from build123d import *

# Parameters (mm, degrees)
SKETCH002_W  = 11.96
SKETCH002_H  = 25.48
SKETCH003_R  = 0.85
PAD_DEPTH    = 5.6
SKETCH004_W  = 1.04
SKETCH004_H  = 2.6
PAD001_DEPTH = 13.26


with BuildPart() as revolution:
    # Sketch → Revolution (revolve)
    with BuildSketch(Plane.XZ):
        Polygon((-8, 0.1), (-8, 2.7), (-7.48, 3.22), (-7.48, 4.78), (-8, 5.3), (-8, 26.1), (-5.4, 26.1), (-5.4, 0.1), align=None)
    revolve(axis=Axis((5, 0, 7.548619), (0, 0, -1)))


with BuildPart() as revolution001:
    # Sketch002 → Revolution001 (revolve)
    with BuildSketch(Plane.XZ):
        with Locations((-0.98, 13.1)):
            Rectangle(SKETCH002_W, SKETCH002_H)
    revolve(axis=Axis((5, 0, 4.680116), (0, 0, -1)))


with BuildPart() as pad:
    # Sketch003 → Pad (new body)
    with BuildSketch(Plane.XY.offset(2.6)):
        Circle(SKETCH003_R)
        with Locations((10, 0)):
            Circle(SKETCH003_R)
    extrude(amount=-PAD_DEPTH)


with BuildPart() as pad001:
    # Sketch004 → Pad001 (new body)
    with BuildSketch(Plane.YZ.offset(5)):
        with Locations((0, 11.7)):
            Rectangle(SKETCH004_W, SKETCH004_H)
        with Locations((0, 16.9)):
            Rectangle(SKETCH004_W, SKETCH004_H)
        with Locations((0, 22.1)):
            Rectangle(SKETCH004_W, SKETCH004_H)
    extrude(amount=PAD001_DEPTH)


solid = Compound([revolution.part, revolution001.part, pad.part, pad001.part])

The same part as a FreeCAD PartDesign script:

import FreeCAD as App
import Part
import Sketcher
from FreeCAD import Vector

doc = App.newDocument("Part")
body = doc.addObject("PartDesign::Body", "Body")

# Sketch on XZ plane
sketch1 = body.newObject("Sketcher::SketchObject", "Sketch")
sketch1.AttachmentSupport = (doc.getObject("XZ_Plane"), [""])
sketch1.MapMode = "FlatFace"
sketch1.addGeometry(Part.LineSegment(Vector(-8, 2.7, 0), Vector(-8, 0.1, 0)), False)
sketch1.addGeometry(Part.LineSegment(Vector(-8, 0.1, 0), Vector(-5.4, 0.1, 0)), False)
sketch1.addGeometry(Part.LineSegment(Vector(-5.4, 0.1, 0), Vector(-5.4, 26.1, 0)), False)
sketch1.addGeometry(Part.LineSegment(Vector(-5.4, 26.1, 0), Vector(-8, 26.1, 0)), False)
sketch1.addGeometry(Part.LineSegment(Vector(-8, 26.1, 0), Vector(-8, 5.3, 0)), False)
sketch1.addGeometry(Part.LineSegment(Vector(-8, 5.3, 0), Vector(-7.48, 4.78, 0)), False)
sketch1.addGeometry(Part.LineSegment(Vector(-7.48, 4.78, 0), Vector(-7.48, 3.22, 0)), False)
sketch1.addGeometry(Part.LineSegment(Vector(-7.48, 3.22, 0), Vector(-8, 2.7, 0)), False)
sketch1.addGeometry(Part.LineSegment(Vector(5, 26.1, 0), Vector(5, 0.1, 0)), True)  # axis
sketch1.addConstraint(Sketcher.Constraint("Coincident", 0, 2, 1, 1))
sketch1.addConstraint(Sketcher.Constraint("Coincident", 1, 2, 2, 1))
sketch1.addConstraint(Sketcher.Constraint("Coincident", 2, 2, 3, 1))
sketch1.addConstraint(Sketcher.Constraint("Coincident", 3, 2, 4, 1))
sketch1.addConstraint(Sketcher.Constraint("Coincident", 4, 2, 5, 1))
sketch1.addConstraint(Sketcher.Constraint("Coincident", 5, 2, 6, 1))
sketch1.addConstraint(Sketcher.Constraint("Coincident", 6, 2, 7, 1))
sketch1.addConstraint(Sketcher.Constraint("Coincident", 7, 2, 0, 1))
sketch1.addConstraint(Sketcher.Constraint("Vertical", 0))
sketch1.addConstraint(Sketcher.Constraint("Horizontal", 1))
sketch1.addConstraint(Sketcher.Constraint("Vertical", 2))
sketch1.addConstraint(Sketcher.Constraint("Horizontal", 3))
sketch1.addConstraint(Sketcher.Constraint("Vertical", 4))
sketch1.addConstraint(Sketcher.Constraint("Vertical", 6))
sketch1.addConstraint(Sketcher.Constraint("Vertical", 8))
sketch1.addConstraint(Sketcher.Constraint("Perpendicular", 5, 7))
sketch1.addConstraint(Sketcher.Constraint("Horizontal", 3, 2, 8, 1))
sketch1.addConstraint(Sketcher.Constraint("Horizontal", 1, 2, 8, 2))
sketch1.addConstraint(Sketcher.Constraint("Vertical", 0, 2, 3, 2))
sketch1.addConstraint(Sketcher.Constraint("Equal", 3, 0))
sketch1.addConstraint(Sketcher.Constraint("Equal", 5, 7))
sketch1.addConstraint(Sketcher.Constraint("DistanceY", 2, 1, 2, 2, 26.0))
sketch1.addConstraint(Sketcher.Constraint("DistanceX", 1, 1, 1, 2, 2.6))
sketch1.addConstraint(Sketcher.Constraint("DistanceY", 4, 2, 4, 1, 20.8))
sketch1.addConstraint(Sketcher.Constraint("DistanceX", 0, 2, -1, 1, 8.0))
sketch1.addConstraint(Sketcher.Constraint("DistanceX", -1, 1, 8, 1, 5.0))
sketch1.addConstraint(Sketcher.Constraint("DistanceY", 6, 2, 6, 1, 1.56))
sketch1.addConstraint(Sketcher.Constraint("DistanceY", -1, 1, 0, 2, 0.1))
revolution = body.newObject("PartDesign::Revolution", "Revolution")
revolution.Profile = sketch1
revolution.ReferenceAxis = (sketch1, ["Axis0"])
revolution.Angle = 360
body2 = doc.addObject("PartDesign::Body", "Body001")

# Sketch on XZ plane
sketch2 = body2.newObject("Sketcher::SketchObject", "Sketch001")
sketch2.AttachmentSupport = (doc.getObject("XZ_Plane001"), [""])
sketch2.MapMode = "FlatFace"
sketch2.addGeometry(Part.LineSegment(Vector(-6.96, 25.84, 0), Vector(-6.96, 0.36, 0)), False)
sketch2.addGeometry(Part.LineSegment(Vector(-6.96, 0.36, 0), Vector(5, 0.36, 0)), False)
sketch2.addGeometry(Part.LineSegment(Vector(5, 0.36, 0), Vector(5, 25.84, 0)), False)
sketch2.addGeometry(Part.LineSegment(Vector(5, 25.84, 0), Vector(-6.96, 25.84, 0)), False)
sketch2.addGeometry(Part.LineSegment(Vector(5, 25.84, 0), Vector(5, 0.36, 0)), True)  # axis
sketch2.addConstraint(Sketcher.Constraint("Coincident", 0, 2, 1, 1))
sketch2.addConstraint(Sketcher.Constraint("Coincident", 1, 2, 2, 1))
sketch2.addConstraint(Sketcher.Constraint("Coincident", 2, 2, 3, 1))
sketch2.addConstraint(Sketcher.Constraint("Coincident", 3, 2, 0, 1))
sketch2.addConstraint(Sketcher.Constraint("Vertical", 0))
sketch2.addConstraint(Sketcher.Constraint("Horizontal", 1))
sketch2.addConstraint(Sketcher.Constraint("Vertical", 2))
sketch2.addConstraint(Sketcher.Constraint("Horizontal", 3))
sketch2.addConstraint(Sketcher.Constraint("Vertical", 4))
sketch2.addConstraint(Sketcher.Constraint("Coincident", 4, 1, 2, 2))
sketch2.addConstraint(Sketcher.Constraint("Horizontal", 0, 2, 4, 2))
sketch2.addConstraint(Sketcher.Constraint("DistanceX", -1, 1, 1, 2, 5.0))
sketch2.addConstraint(Sketcher.Constraint("DistanceX", 1, 1, 1, 2, 11.96))
sketch2.addConstraint(Sketcher.Constraint("DistanceY", 0, 2, 0, 1, 25.48))
sketch2.addConstraint(Sketcher.Constraint("DistanceY", -1, 1, 0, 2, 0.36))
revolution2 = body2.newObject("PartDesign::Revolution", "Revolution001")
revolution2.Profile = sketch2
revolution2.ReferenceAxis = (sketch2, ["Axis0"])
revolution2.Angle = 360
body3 = doc.addObject("PartDesign::Body", "Body002")
body3.AllowCompound = True

# Sketch on XY plane
sketch3 = body3.newObject("Sketcher::SketchObject", "Sketch002")
sketch3.AttachmentSupport = (doc.getObject("XY_Plane002"), [""])
sketch3.MapMode = "FlatFace"
sketch3.AttachmentOffset = App.Placement(Vector(0, 0, 2.6), App.Rotation())
sketch3.addGeometry(Part.Circle(Vector(0, 0, 0), Vector(0, 0, 1), 0.85), False)
sketch3.addGeometry(Part.Circle(Vector(10, 0, 0), Vector(0, 0, 1), 0.85), False)
sketch3.addConstraint(Sketcher.Constraint("Coincident", 0, 3, -1, 1))
sketch3.addConstraint(Sketcher.Constraint("Equal", 0, 1))
sketch3.addConstraint(Sketcher.Constraint("PointOnObject", 1, 3, -1))
sketch3.addConstraint(Sketcher.Constraint("Diameter", 0, 1.7))
sketch3.addConstraint(Sketcher.Constraint("DistanceX", -1, 1, 1, 3, 10.0))
pad1 = body3.newObject("PartDesign::Pad", "Pad")
pad1.Profile = sketch3
pad1.Length = 5.6
pad1.Reversed = True
body4 = doc.addObject("PartDesign::Body", "Body003")
body4.AllowCompound = True

# Sketch on YZ plane
sketch4 = body4.newObject("Sketcher::SketchObject", "Sketch003")
sketch4.AttachmentSupport = (doc.getObject("YZ_Plane003"), [""])
sketch4.MapMode = "FlatFace"
sketch4.AttachmentOffset = App.Placement(Vector(0, 0, 5), App.Rotation())
sketch4.addGeometry(Part.LineSegment(Vector(-0.52, 13, 0), Vector(-0.52, 10.4, 0)), False)
sketch4.addGeometry(Part.LineSegment(Vector(-0.52, 10.4, 0), Vector(0.52, 10.4, 0)), False)
sketch4.addGeometry(Part.LineSegment(Vector(0.52, 10.4, 0), Vector(0.52, 13, 0)), False)
sketch4.addGeometry(Part.LineSegment(Vector(0.52, 13, 0), Vector(-0.52, 13, 0)), False)
sketch4.addGeometry(Part.LineSegment(Vector(-0.52, 18.2, 0), Vector(-0.52, 15.6, 0)), False)
sketch4.addGeometry(Part.LineSegment(Vector(-0.52, 15.6, 0), Vector(0.52, 15.6, 0)), False)
sketch4.addGeometry(Part.LineSegment(Vector(0.52, 15.6, 0), Vector(0.52, 18.2, 0)), False)
sketch4.addGeometry(Part.LineSegment(Vector(0.52, 18.2, 0), Vector(-0.52, 18.2, 0)), False)
sketch4.addGeometry(Part.LineSegment(Vector(-0.52, 23.4, 0), Vector(-0.52, 20.8, 0)), False)
sketch4.addGeometry(Part.LineSegment(Vector(-0.52, 20.8, 0), Vector(0.52, 20.8, 0)), False)
sketch4.addGeometry(Part.LineSegment(Vector(0.52, 20.8, 0), Vector(0.52, 23.4, 0)), False)
sketch4.addGeometry(Part.LineSegment(Vector(0.52, 23.4, 0), Vector(-0.52, 23.4, 0)), False)
sketch4.addConstraint(Sketcher.Constraint("Coincident", 0, 2, 1, 1))
sketch4.addConstraint(Sketcher.Constraint("Coincident", 1, 2, 2, 1))
sketch4.addConstraint(Sketcher.Constraint("Coincident", 2, 2, 3, 1))
sketch4.addConstraint(Sketcher.Constraint("Coincident", 3, 2, 0, 1))
sketch4.addConstraint(Sketcher.Constraint("Coincident", 4, 2, 5, 1))
sketch4.addConstraint(Sketcher.Constraint("Coincident", 5, 2, 6, 1))
sketch4.addConstraint(Sketcher.Constraint("Coincident", 6, 2, 7, 1))
sketch4.addConstraint(Sketcher.Constraint("Coincident", 7, 2, 4, 1))
sketch4.addConstraint(Sketcher.Constraint("Coincident", 8, 2, 9, 1))
sketch4.addConstraint(Sketcher.Constraint("Coincident", 9, 2, 10, 1))
sketch4.addConstraint(Sketcher.Constraint("Coincident", 10, 2, 11, 1))
sketch4.addConstraint(Sketcher.Constraint("Coincident", 11, 2, 8, 1))
sketch4.addConstraint(Sketcher.Constraint("Vertical", 0))
sketch4.addConstraint(Sketcher.Constraint("Horizontal", 1))
sketch4.addConstraint(Sketcher.Constraint("Vertical", 2))
sketch4.addConstraint(Sketcher.Constraint("Horizontal", 3))
sketch4.addConstraint(Sketcher.Constraint("Vertical", 4))
sketch4.addConstraint(Sketcher.Constraint("Horizontal", 5))
sketch4.addConstraint(Sketcher.Constraint("Vertical", 6))
sketch4.addConstraint(Sketcher.Constraint("Horizontal", 7))
sketch4.addConstraint(Sketcher.Constraint("Vertical", 8))
sketch4.addConstraint(Sketcher.Constraint("Horizontal", 9))
sketch4.addConstraint(Sketcher.Constraint("Vertical", 10))
sketch4.addConstraint(Sketcher.Constraint("Horizontal", 11))
sketch4.addConstraint(Sketcher.Constraint("Vertical", 3, 2, 4, 2))
sketch4.addConstraint(Sketcher.Constraint("Vertical", 2, 2, 5, 2))
sketch4.addConstraint(Sketcher.Constraint("Vertical", 7, 2, 8, 2))
sketch4.addConstraint(Sketcher.Constraint("Vertical", 6, 2, 9, 2))
sketch4.addConstraint(Sketcher.Constraint("Equal", 2, 4))
sketch4.addConstraint(Sketcher.Constraint("Equal", 6, 8))
sketch4.addConstraint(Sketcher.Constraint("DistanceY", 0, 2, 0, 1, 2.6))
sketch4.addConstraint(Sketcher.Constraint("DistanceY", -1, 1, 2, 2, 13.0))
sketch4.addConstraint(Sketcher.Constraint("DistanceX", 1, 1, 1, 2, 1.04))
sketch4.addConstraint(Sketcher.Constraint("DistanceY", -1, 1, 4, 2, 15.6))
sketch4.addConstraint(Sketcher.Constraint("DistanceY", -1, 1, 8, 2, 20.8))
sketch4.addConstraint(Sketcher.Constraint("DistanceX", 0, 2, -1, 1, 0.52))
pad2 = body4.newObject("PartDesign::Pad", "Pad001")
pad2.Profile = sketch4
pad2.Length = 13.26

doc.recompute()
